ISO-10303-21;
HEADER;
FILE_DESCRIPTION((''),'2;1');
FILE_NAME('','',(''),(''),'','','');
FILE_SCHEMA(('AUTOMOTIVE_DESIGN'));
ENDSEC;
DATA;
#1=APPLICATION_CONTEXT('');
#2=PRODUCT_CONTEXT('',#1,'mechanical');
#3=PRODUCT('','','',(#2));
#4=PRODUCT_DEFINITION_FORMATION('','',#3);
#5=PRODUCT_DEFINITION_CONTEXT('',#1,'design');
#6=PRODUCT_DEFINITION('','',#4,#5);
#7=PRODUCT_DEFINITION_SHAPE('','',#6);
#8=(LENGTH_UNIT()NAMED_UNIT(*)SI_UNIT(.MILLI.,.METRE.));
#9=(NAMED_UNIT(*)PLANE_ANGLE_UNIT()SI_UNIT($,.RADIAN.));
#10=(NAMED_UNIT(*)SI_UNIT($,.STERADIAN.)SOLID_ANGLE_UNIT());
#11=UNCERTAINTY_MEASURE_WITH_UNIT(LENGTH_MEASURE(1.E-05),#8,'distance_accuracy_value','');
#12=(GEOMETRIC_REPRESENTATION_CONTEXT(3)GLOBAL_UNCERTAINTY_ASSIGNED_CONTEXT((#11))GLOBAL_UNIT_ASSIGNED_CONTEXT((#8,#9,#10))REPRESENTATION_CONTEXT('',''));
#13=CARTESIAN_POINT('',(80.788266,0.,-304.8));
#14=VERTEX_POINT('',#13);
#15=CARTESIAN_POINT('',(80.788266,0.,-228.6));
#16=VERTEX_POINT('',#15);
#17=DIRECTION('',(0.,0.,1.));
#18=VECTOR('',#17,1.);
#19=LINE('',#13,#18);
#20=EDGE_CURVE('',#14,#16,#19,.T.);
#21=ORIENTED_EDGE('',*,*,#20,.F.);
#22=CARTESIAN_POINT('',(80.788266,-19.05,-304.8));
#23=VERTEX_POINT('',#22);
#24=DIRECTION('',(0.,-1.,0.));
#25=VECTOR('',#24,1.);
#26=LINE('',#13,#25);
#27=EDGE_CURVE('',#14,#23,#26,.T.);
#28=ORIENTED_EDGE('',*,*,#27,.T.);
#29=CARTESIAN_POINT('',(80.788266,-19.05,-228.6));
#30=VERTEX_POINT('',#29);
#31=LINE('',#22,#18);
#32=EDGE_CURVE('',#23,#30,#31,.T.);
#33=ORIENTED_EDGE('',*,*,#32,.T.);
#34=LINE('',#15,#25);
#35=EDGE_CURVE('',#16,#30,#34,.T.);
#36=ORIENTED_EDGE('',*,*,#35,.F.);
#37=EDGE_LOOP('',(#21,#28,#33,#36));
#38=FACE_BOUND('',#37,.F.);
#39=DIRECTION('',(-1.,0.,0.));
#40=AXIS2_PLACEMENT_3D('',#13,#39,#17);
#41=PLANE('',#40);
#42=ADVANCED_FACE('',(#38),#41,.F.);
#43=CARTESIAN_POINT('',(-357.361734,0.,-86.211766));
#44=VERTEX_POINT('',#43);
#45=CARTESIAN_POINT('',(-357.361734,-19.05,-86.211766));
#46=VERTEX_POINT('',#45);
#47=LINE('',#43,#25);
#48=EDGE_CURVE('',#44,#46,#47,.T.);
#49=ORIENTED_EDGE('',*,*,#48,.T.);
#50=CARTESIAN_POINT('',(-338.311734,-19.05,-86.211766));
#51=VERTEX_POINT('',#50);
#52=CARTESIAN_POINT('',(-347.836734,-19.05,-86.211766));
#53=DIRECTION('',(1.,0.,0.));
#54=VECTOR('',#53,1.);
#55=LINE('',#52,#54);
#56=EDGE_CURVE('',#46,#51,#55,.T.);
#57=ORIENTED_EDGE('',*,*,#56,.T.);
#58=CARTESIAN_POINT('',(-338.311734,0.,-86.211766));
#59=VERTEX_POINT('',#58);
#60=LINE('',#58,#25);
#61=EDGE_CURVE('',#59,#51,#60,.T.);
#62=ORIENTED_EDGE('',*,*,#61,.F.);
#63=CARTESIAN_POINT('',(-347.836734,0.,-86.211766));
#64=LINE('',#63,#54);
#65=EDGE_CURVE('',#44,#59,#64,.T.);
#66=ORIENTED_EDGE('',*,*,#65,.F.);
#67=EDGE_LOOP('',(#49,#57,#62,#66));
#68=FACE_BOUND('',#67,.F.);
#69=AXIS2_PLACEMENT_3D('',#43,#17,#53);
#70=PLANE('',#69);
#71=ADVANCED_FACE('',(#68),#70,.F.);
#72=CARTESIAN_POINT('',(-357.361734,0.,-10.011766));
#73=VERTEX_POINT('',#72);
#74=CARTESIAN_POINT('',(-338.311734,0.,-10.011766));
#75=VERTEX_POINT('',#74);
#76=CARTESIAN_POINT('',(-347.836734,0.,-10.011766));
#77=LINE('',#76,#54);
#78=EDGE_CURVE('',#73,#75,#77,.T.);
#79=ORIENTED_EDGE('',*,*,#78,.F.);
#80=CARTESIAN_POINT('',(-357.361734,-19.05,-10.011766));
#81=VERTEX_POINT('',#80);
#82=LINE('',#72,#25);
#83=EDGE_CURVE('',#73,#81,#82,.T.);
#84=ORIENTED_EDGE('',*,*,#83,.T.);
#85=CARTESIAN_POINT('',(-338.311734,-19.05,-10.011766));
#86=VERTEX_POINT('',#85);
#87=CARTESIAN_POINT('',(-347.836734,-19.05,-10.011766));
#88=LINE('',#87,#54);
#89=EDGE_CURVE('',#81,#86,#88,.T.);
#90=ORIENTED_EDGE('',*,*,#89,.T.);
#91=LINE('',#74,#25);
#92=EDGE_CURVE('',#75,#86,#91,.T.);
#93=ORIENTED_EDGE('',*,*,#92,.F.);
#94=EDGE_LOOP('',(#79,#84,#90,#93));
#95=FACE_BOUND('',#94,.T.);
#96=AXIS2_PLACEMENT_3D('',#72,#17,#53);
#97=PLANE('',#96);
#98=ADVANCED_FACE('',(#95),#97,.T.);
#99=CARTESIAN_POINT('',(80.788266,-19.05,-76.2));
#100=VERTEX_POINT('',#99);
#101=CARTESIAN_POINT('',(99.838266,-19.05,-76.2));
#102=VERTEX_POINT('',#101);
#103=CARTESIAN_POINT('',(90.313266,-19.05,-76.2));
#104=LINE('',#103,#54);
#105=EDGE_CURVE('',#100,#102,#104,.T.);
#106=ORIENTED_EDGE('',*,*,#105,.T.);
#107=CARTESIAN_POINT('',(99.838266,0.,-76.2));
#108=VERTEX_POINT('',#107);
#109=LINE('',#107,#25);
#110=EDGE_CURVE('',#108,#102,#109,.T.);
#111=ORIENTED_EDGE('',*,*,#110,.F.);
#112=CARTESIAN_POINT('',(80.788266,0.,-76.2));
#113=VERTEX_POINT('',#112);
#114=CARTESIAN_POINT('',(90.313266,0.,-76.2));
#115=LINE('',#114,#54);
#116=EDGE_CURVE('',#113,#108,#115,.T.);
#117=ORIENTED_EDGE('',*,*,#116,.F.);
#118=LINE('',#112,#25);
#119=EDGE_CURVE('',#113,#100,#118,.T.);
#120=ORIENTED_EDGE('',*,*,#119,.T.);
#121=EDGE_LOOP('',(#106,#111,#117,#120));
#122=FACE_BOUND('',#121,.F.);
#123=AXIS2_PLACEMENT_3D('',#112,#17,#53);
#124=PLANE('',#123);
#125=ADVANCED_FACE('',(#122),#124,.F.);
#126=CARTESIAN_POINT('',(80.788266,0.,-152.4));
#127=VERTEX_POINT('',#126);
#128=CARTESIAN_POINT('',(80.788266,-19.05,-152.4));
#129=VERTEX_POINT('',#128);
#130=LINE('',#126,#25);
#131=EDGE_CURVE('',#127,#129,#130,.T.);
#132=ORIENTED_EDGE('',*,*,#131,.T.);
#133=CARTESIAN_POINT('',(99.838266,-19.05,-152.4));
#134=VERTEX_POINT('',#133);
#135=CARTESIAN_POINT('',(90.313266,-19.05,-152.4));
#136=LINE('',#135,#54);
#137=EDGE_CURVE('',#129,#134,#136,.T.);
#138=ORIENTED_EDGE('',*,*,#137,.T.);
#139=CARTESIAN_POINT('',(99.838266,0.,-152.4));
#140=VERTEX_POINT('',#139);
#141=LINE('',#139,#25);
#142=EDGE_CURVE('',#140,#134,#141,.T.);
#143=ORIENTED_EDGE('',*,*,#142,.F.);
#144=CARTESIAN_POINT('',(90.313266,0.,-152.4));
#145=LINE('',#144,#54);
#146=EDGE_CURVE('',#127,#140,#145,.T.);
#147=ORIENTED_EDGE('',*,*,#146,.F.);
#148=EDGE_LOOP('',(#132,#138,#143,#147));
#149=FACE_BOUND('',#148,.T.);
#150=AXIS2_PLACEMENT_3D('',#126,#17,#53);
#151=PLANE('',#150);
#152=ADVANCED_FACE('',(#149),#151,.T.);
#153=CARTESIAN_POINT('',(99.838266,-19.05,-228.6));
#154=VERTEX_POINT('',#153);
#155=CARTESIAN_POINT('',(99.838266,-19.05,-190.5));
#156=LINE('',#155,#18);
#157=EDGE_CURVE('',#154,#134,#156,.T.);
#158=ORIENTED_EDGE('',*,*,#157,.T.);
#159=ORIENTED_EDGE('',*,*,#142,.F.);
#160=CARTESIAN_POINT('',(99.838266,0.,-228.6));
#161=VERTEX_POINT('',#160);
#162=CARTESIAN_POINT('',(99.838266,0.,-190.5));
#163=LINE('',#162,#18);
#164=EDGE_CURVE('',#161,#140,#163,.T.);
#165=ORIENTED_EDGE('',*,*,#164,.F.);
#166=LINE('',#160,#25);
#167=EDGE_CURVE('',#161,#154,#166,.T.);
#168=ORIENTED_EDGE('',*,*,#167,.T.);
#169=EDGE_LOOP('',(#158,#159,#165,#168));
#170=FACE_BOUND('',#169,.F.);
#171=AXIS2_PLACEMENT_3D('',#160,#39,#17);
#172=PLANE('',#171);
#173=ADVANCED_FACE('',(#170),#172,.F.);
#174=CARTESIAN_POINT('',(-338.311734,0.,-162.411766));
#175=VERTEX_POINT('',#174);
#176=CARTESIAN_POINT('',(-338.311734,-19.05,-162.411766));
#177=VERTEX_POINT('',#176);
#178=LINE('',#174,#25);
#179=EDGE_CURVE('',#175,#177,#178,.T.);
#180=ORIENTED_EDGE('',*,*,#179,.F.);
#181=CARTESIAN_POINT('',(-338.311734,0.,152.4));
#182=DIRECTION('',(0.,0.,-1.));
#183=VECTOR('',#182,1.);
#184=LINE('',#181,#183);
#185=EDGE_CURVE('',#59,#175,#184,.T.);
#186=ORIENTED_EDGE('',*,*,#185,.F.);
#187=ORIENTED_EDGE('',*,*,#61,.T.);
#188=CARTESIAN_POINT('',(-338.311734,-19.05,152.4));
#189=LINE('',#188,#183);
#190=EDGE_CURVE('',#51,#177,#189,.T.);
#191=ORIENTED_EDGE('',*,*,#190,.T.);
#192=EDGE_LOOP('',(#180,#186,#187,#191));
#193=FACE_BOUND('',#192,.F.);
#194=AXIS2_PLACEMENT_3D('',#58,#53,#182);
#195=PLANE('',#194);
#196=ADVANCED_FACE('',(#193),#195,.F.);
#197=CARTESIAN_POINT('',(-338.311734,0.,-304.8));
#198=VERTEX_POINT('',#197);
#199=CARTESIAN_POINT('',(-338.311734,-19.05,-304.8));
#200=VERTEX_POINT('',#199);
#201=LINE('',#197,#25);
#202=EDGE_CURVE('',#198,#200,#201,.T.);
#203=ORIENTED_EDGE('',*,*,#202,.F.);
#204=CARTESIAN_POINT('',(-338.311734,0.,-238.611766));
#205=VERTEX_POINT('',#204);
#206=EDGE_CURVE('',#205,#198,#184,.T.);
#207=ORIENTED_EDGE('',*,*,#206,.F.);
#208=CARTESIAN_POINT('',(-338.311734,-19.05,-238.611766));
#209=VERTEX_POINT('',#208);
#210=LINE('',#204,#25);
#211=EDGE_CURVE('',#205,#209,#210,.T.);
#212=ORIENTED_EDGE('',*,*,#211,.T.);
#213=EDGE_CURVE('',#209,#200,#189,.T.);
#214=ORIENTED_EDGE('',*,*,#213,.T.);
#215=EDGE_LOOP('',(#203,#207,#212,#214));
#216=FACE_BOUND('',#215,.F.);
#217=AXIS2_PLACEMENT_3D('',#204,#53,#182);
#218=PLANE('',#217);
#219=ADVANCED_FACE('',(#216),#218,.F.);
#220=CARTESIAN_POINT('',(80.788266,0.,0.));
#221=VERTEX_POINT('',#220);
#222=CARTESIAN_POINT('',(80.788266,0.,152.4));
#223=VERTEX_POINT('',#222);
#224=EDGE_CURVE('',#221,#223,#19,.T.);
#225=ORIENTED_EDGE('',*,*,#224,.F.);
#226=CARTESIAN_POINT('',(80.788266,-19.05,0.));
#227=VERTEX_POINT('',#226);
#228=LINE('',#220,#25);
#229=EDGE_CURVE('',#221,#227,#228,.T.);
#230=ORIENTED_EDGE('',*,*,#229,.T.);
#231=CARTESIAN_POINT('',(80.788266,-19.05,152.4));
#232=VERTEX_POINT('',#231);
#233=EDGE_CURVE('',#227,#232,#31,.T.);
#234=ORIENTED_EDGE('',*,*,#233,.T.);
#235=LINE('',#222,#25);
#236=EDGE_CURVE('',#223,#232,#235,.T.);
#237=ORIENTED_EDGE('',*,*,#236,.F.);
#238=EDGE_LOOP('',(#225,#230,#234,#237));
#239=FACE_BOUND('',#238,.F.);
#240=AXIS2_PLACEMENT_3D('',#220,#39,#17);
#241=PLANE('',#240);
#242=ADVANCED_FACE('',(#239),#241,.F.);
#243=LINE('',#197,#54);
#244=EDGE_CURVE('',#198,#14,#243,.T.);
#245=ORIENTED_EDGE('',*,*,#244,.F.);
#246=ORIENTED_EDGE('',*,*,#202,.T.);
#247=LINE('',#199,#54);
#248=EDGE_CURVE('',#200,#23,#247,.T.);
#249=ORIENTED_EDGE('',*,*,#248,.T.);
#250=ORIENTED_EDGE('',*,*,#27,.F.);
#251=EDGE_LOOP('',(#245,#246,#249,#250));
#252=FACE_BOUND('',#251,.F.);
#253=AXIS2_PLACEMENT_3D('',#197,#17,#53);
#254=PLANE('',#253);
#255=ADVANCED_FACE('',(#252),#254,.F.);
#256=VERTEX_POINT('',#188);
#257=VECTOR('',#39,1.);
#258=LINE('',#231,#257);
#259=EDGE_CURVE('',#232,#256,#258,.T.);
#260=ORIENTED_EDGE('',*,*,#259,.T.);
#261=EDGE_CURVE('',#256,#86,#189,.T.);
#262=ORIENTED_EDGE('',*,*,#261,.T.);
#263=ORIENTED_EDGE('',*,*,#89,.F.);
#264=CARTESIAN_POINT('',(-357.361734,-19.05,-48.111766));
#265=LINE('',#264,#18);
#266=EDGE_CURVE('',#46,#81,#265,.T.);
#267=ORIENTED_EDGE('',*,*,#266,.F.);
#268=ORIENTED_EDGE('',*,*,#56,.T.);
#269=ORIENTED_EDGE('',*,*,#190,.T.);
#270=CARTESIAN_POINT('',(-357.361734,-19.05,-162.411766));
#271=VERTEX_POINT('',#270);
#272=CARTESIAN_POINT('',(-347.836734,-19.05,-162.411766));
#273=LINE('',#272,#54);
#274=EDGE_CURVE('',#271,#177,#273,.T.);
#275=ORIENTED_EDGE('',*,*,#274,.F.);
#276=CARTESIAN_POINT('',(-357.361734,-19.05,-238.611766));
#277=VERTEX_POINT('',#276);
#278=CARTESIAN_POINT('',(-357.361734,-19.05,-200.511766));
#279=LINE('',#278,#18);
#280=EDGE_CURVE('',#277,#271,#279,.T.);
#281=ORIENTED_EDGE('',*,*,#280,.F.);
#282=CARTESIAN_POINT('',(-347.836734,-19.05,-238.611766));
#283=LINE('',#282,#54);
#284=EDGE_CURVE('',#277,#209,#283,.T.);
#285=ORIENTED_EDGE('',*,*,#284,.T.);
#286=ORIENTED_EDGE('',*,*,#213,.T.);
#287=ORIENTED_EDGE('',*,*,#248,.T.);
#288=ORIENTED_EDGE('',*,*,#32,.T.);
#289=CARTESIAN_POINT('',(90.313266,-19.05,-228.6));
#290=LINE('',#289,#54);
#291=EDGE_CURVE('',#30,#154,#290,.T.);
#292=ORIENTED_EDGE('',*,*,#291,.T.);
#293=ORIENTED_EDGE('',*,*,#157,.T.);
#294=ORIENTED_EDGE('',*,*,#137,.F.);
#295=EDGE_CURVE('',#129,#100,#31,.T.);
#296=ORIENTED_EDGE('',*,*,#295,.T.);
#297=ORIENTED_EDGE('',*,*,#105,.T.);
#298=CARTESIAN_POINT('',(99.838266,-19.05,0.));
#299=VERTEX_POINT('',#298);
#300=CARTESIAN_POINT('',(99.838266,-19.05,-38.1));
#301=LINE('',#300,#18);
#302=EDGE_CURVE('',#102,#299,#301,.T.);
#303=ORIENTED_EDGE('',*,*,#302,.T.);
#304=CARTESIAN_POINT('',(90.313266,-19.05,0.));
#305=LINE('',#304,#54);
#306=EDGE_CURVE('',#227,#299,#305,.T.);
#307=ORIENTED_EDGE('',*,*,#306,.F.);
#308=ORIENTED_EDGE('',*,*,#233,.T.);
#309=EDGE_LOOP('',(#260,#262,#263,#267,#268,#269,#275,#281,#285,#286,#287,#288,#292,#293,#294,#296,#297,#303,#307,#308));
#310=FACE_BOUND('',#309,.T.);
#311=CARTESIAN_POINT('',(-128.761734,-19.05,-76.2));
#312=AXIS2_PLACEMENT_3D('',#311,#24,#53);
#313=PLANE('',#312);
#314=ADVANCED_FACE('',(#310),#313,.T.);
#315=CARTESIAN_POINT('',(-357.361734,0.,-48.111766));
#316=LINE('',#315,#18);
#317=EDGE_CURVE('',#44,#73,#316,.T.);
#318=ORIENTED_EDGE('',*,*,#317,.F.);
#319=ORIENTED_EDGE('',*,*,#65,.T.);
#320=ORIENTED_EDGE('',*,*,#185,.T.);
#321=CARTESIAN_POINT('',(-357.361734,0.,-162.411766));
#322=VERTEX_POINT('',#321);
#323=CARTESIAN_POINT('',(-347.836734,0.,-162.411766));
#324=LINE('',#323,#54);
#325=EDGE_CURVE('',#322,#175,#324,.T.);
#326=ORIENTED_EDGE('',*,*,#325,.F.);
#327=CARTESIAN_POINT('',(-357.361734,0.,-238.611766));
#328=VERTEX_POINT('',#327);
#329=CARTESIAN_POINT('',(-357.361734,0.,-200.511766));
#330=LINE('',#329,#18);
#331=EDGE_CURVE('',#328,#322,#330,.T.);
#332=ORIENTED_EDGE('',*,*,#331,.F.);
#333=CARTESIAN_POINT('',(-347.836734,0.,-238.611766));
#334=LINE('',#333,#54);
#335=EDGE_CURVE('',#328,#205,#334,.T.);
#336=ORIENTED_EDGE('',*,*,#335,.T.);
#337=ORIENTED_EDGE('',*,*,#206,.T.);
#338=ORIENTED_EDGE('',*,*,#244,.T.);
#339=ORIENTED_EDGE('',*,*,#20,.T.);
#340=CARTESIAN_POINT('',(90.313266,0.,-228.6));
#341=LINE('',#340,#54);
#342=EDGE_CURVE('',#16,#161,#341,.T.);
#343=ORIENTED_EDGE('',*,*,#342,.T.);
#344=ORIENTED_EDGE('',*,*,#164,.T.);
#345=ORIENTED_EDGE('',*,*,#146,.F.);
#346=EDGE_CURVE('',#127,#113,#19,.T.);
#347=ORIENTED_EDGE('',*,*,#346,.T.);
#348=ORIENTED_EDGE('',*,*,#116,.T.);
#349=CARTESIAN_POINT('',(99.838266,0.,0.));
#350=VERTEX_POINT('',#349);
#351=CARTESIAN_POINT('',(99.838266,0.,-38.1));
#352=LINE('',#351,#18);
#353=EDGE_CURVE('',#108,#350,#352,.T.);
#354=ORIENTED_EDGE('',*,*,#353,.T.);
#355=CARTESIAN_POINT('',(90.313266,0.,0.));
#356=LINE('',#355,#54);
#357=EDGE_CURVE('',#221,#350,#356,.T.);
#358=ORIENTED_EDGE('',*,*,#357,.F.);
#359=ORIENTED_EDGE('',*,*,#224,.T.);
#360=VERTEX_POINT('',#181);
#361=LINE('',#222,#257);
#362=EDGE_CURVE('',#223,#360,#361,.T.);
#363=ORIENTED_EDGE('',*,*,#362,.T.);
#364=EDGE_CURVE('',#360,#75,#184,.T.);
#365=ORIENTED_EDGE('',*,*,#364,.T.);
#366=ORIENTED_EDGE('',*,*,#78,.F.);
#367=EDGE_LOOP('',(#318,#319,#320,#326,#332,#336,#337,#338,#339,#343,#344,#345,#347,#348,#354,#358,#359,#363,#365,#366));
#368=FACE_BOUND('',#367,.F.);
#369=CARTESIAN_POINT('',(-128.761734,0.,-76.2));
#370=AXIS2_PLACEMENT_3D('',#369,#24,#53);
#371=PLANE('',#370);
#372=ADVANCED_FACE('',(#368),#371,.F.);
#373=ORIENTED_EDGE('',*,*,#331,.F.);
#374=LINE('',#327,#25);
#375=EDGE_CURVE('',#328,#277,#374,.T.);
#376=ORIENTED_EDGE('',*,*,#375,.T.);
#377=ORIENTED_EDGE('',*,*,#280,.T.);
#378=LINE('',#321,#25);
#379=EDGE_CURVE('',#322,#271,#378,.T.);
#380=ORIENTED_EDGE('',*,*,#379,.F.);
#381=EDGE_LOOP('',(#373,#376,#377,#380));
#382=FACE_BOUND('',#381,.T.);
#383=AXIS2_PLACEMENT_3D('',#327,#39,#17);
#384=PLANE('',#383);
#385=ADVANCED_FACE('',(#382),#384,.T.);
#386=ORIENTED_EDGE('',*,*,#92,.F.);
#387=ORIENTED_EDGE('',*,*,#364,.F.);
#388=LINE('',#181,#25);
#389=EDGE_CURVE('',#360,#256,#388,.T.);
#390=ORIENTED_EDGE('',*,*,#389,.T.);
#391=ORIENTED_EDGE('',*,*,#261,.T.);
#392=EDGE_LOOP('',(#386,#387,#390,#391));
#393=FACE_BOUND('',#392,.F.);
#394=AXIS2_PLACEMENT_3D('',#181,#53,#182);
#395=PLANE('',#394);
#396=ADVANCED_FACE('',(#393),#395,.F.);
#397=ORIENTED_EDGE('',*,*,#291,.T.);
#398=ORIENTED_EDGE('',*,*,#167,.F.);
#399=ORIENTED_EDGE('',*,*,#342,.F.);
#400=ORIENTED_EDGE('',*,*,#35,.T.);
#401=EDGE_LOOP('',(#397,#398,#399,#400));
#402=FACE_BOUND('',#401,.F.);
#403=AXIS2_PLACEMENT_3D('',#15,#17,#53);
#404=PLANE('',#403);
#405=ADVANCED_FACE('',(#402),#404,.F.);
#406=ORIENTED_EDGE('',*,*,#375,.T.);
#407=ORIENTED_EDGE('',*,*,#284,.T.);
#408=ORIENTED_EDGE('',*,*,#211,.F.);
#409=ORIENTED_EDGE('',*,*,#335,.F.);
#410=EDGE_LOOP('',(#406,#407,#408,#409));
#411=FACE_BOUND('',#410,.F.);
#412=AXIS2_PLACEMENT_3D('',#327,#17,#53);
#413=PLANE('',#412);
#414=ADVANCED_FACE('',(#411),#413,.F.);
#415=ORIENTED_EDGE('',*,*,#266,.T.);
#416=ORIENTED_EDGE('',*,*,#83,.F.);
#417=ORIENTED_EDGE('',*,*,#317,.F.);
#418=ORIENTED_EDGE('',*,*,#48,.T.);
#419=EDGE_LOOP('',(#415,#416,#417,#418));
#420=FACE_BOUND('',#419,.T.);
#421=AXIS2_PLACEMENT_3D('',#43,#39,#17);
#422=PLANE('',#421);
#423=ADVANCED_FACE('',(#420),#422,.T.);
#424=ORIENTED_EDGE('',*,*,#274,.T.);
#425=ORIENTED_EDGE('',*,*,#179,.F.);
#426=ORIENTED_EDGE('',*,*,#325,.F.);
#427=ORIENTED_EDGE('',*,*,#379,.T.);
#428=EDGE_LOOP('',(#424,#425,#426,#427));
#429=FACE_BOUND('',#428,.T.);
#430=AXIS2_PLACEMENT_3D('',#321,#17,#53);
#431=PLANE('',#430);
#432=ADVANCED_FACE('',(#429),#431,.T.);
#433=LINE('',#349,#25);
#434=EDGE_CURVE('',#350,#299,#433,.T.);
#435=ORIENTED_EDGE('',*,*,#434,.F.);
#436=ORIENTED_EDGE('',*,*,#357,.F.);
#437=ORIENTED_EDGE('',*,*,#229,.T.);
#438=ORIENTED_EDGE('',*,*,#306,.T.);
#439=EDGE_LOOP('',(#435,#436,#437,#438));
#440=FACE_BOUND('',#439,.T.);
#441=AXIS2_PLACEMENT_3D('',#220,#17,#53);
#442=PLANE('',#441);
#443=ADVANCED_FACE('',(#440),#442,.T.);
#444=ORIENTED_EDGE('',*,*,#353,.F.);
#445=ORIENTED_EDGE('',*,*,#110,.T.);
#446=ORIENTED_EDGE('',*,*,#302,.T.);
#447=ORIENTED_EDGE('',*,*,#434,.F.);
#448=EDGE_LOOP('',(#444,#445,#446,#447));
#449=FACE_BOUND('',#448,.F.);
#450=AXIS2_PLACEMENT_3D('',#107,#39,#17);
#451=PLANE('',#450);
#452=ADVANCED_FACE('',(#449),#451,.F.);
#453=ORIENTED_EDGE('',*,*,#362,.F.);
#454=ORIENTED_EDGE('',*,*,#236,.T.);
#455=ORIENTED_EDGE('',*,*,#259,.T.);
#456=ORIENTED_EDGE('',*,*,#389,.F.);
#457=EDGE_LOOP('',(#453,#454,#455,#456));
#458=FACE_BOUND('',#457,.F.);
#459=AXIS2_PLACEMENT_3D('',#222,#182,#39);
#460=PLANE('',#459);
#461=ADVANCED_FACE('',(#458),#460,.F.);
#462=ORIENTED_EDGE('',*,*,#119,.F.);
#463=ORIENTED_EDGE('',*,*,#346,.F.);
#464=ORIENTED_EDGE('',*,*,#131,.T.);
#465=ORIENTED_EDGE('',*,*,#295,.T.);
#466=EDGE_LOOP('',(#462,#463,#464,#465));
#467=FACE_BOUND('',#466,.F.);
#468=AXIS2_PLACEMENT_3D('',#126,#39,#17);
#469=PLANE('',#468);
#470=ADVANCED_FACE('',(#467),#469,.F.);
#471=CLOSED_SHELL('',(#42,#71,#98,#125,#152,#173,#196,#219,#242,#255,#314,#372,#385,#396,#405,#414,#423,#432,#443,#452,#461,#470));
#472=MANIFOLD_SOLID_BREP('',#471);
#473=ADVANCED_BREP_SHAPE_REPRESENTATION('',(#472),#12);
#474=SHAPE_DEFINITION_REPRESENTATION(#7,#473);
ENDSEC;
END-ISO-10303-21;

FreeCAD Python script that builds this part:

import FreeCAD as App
import Part
import Sketcher

V = App.Vector
Q = App.Units.Quantity

doc = App.newDocument("Part")
body = doc.addObject("PartDesign::Body", "Body")

# Sketch on XZ plane
sketch1 = body.newObject("Sketcher::SketchObject", "Sketch")
sketch1.AttachmentSupport = (doc.getObject("XZ_Plane"), [""])
sketch1.MapMode = "FlatFace"
sketch1.addGeometry([
    Part.LineSegment(V(81, 152, 0), V(-338, 152, 0)),  # 0
    Part.LineSegment(V(-338, 152, 0), V(-338, -10, 0)),  # 1
    Part.LineSegment(V(-338, -10, 0), V(-357, -10, 0)),  # 2
    Part.LineSegment(V(-357, -10, 0), V(-357, -86, 0)),  # 3
    Part.LineSegment(V(-357, -86, 0), V(-338, -86, 0)),  # 4
    Part.LineSegment(V(-338, -86, 0), V(-338, -162, 0)),  # 5
    Part.LineSegment(V(-338, -162, 0), V(-357, -162, 0)),  # 6
    Part.LineSegment(V(-357, -162, 0), V(-357, -239, 0)),  # 7
    Part.LineSegment(V(-357, -239, 0), V(-338, -239, 0)),  # 8
    Part.LineSegment(V(-338, -239, 0), V(-338, -305, 0)),  # 9
    Part.LineSegment(V(-338, -305, 0), V(81, -305, 0)),  # 10
    Part.LineSegment(V(81, -305, 0), V(81, -229, 0)),  # 11
    Part.LineSegment(V(81, -229, 0), V(100, -229, 0)),  # 12
    Part.LineSegment(V(100, -229, 0), V(100, -152, 0)),  # 13
    Part.LineSegment(V(100, -152, 0), V(81, -152, 0)),  # 14
    Part.LineSegment(V(81, -152, 0), V(81, -76, 0)),  # 15
    Part.LineSegment(V(81, -76, 0), V(100, -76, 0)),  # 16
    Part.LineSegment(V(100, -76, 0), V(100, 0, 0)),  # 17
    Part.LineSegment(V(100, 0, 0), V(81, 0, 0)),  # 18
    Part.LineSegment(V(81, 0, 0), V(81, 152, 0)),  # 19
], False)
sketch1.addConstraint([
    Sketcher.Constraint("Coincident", 0, 2, 1, 1),
    Sketcher.Constraint("Coincident", 1, 2, 2, 1),
    Sketcher.Constraint("Coincident", 2, 2, 3, 1),
    Sketcher.Constraint("Coincident", 3, 2, 4, 1),
    Sketcher.Constraint("Coincident", 4, 2, 5, 1),
    Sketcher.Constraint("Coincident", 5, 2, 6, 1),
    Sketcher.Constraint("Coincident", 6, 2, 7, 1),
    Sketcher.Constraint("Coincident", 7, 2, 8, 1),
    Sketcher.Constraint("Coincident", 8, 2, 9, 1),
    Sketcher.Constraint("Coincident", 9, 2, 10, 1),
    Sketcher.Constraint("Coincident", 10, 2, 11, 1),
    Sketcher.Constraint("Coincident", 11, 2, 12, 1),
    Sketcher.Constraint("Coincident", 12, 2, 13, 1),
    Sketcher.Constraint("Coincident", 13, 2, 14, 1),
    Sketcher.Constraint("Coincident", 14, 2, 15, 1),
    Sketcher.Constraint("Coincident", 15, 2, 16, 1),
    Sketcher.Constraint("Coincident", 16, 2, 17, 1),
    Sketcher.Constraint("Coincident", 17, 2, 18, 1),
    Sketcher.Constraint("Coincident", 18, 2, 19, 1),
    Sketcher.Constraint("Coincident", 19, 2, 0, 1),
    Sketcher.Constraint("Horizontal", 0),
    Sketcher.Constraint("Vertical", 1),
    Sketcher.Constraint("Horizontal", 2),
    Sketcher.Constraint("Vertical", 3),
    Sketcher.Constraint("Horizontal", 4),
    Sketcher.Constraint("Vertical", 5),
    Sketcher.Constraint("Horizontal", 6),
    Sketcher.Constraint("Vertical", 7),
    Sketcher.Constraint("Horizontal", 8),
    Sketcher.Constraint("Vertical", 9),
    Sketcher.Constraint("Horizontal", 10),
    Sketcher.Constraint("Vertical", 11),
    Sketcher.Constraint("Horizontal", 12),
    Sketcher.Constraint("Vertical", 13),
    Sketcher.Constraint("Horizontal", 14),
    Sketcher.Constraint("Vertical", 15),
    Sketcher.Constraint("Horizontal", 16),
    Sketcher.Constraint("Vertical", 17),
    Sketcher.Constraint("Horizontal", 18),
    Sketcher.Constraint("Vertical", 19),
    Sketcher.Constraint("Symmetric", 14, 2, 19, 2, -1),
    Sketcher.Constraint("PointOnObject", 17, 2, -1),
    Sketcher.Constraint("Vertical", 1, 2, 4, 2),
    Sketcher.Constraint("Vertical", 3, 2, 6, 2),
    Sketcher.Constraint("Vertical", 5, 2, 8, 2),
    Sketcher.Constraint("Vertical", 11, 2, 14, 2),
    Sketcher.Constraint("Vertical", 13, 2, 16, 2),
    Sketcher.Constraint("Equal", 8, 12),
    Sketcher.Constraint("Equal", 3, 5),
    Sketcher.Constraint("Equal", 5, 7),
    Sketcher.Constraint("Equal", 7, 11),
    Sketcher.Constraint("Equal", 11, 13),
    Sketcher.Constraint("Equal", 13, 15),
    Sketcher.Constraint("Equal", 15, 17),
    Sketcher.Constraint("DistanceY", 3, 2, 3, 1, Q("3 in")),
    Sketcher.Constraint("DistanceX", 0, 2, 0, 1, Q("16.5 in")),
    Sketcher.Constraint("DistanceX", 2, 2, 2, 1, Q("0.75 in")),
    Sketcher.Constraint("DistanceY", 1, 2, 1, 1, 162.411766),
    Sketcher.Constraint("DistanceX", 0, 2, -1, 1, 338.311734),
])
pad1 = body.newObject("PartDesign::Pad", "Pad")
pad1.Profile = sketch1
pad1.Length = Q("0.75 in")

doc.recompute()
